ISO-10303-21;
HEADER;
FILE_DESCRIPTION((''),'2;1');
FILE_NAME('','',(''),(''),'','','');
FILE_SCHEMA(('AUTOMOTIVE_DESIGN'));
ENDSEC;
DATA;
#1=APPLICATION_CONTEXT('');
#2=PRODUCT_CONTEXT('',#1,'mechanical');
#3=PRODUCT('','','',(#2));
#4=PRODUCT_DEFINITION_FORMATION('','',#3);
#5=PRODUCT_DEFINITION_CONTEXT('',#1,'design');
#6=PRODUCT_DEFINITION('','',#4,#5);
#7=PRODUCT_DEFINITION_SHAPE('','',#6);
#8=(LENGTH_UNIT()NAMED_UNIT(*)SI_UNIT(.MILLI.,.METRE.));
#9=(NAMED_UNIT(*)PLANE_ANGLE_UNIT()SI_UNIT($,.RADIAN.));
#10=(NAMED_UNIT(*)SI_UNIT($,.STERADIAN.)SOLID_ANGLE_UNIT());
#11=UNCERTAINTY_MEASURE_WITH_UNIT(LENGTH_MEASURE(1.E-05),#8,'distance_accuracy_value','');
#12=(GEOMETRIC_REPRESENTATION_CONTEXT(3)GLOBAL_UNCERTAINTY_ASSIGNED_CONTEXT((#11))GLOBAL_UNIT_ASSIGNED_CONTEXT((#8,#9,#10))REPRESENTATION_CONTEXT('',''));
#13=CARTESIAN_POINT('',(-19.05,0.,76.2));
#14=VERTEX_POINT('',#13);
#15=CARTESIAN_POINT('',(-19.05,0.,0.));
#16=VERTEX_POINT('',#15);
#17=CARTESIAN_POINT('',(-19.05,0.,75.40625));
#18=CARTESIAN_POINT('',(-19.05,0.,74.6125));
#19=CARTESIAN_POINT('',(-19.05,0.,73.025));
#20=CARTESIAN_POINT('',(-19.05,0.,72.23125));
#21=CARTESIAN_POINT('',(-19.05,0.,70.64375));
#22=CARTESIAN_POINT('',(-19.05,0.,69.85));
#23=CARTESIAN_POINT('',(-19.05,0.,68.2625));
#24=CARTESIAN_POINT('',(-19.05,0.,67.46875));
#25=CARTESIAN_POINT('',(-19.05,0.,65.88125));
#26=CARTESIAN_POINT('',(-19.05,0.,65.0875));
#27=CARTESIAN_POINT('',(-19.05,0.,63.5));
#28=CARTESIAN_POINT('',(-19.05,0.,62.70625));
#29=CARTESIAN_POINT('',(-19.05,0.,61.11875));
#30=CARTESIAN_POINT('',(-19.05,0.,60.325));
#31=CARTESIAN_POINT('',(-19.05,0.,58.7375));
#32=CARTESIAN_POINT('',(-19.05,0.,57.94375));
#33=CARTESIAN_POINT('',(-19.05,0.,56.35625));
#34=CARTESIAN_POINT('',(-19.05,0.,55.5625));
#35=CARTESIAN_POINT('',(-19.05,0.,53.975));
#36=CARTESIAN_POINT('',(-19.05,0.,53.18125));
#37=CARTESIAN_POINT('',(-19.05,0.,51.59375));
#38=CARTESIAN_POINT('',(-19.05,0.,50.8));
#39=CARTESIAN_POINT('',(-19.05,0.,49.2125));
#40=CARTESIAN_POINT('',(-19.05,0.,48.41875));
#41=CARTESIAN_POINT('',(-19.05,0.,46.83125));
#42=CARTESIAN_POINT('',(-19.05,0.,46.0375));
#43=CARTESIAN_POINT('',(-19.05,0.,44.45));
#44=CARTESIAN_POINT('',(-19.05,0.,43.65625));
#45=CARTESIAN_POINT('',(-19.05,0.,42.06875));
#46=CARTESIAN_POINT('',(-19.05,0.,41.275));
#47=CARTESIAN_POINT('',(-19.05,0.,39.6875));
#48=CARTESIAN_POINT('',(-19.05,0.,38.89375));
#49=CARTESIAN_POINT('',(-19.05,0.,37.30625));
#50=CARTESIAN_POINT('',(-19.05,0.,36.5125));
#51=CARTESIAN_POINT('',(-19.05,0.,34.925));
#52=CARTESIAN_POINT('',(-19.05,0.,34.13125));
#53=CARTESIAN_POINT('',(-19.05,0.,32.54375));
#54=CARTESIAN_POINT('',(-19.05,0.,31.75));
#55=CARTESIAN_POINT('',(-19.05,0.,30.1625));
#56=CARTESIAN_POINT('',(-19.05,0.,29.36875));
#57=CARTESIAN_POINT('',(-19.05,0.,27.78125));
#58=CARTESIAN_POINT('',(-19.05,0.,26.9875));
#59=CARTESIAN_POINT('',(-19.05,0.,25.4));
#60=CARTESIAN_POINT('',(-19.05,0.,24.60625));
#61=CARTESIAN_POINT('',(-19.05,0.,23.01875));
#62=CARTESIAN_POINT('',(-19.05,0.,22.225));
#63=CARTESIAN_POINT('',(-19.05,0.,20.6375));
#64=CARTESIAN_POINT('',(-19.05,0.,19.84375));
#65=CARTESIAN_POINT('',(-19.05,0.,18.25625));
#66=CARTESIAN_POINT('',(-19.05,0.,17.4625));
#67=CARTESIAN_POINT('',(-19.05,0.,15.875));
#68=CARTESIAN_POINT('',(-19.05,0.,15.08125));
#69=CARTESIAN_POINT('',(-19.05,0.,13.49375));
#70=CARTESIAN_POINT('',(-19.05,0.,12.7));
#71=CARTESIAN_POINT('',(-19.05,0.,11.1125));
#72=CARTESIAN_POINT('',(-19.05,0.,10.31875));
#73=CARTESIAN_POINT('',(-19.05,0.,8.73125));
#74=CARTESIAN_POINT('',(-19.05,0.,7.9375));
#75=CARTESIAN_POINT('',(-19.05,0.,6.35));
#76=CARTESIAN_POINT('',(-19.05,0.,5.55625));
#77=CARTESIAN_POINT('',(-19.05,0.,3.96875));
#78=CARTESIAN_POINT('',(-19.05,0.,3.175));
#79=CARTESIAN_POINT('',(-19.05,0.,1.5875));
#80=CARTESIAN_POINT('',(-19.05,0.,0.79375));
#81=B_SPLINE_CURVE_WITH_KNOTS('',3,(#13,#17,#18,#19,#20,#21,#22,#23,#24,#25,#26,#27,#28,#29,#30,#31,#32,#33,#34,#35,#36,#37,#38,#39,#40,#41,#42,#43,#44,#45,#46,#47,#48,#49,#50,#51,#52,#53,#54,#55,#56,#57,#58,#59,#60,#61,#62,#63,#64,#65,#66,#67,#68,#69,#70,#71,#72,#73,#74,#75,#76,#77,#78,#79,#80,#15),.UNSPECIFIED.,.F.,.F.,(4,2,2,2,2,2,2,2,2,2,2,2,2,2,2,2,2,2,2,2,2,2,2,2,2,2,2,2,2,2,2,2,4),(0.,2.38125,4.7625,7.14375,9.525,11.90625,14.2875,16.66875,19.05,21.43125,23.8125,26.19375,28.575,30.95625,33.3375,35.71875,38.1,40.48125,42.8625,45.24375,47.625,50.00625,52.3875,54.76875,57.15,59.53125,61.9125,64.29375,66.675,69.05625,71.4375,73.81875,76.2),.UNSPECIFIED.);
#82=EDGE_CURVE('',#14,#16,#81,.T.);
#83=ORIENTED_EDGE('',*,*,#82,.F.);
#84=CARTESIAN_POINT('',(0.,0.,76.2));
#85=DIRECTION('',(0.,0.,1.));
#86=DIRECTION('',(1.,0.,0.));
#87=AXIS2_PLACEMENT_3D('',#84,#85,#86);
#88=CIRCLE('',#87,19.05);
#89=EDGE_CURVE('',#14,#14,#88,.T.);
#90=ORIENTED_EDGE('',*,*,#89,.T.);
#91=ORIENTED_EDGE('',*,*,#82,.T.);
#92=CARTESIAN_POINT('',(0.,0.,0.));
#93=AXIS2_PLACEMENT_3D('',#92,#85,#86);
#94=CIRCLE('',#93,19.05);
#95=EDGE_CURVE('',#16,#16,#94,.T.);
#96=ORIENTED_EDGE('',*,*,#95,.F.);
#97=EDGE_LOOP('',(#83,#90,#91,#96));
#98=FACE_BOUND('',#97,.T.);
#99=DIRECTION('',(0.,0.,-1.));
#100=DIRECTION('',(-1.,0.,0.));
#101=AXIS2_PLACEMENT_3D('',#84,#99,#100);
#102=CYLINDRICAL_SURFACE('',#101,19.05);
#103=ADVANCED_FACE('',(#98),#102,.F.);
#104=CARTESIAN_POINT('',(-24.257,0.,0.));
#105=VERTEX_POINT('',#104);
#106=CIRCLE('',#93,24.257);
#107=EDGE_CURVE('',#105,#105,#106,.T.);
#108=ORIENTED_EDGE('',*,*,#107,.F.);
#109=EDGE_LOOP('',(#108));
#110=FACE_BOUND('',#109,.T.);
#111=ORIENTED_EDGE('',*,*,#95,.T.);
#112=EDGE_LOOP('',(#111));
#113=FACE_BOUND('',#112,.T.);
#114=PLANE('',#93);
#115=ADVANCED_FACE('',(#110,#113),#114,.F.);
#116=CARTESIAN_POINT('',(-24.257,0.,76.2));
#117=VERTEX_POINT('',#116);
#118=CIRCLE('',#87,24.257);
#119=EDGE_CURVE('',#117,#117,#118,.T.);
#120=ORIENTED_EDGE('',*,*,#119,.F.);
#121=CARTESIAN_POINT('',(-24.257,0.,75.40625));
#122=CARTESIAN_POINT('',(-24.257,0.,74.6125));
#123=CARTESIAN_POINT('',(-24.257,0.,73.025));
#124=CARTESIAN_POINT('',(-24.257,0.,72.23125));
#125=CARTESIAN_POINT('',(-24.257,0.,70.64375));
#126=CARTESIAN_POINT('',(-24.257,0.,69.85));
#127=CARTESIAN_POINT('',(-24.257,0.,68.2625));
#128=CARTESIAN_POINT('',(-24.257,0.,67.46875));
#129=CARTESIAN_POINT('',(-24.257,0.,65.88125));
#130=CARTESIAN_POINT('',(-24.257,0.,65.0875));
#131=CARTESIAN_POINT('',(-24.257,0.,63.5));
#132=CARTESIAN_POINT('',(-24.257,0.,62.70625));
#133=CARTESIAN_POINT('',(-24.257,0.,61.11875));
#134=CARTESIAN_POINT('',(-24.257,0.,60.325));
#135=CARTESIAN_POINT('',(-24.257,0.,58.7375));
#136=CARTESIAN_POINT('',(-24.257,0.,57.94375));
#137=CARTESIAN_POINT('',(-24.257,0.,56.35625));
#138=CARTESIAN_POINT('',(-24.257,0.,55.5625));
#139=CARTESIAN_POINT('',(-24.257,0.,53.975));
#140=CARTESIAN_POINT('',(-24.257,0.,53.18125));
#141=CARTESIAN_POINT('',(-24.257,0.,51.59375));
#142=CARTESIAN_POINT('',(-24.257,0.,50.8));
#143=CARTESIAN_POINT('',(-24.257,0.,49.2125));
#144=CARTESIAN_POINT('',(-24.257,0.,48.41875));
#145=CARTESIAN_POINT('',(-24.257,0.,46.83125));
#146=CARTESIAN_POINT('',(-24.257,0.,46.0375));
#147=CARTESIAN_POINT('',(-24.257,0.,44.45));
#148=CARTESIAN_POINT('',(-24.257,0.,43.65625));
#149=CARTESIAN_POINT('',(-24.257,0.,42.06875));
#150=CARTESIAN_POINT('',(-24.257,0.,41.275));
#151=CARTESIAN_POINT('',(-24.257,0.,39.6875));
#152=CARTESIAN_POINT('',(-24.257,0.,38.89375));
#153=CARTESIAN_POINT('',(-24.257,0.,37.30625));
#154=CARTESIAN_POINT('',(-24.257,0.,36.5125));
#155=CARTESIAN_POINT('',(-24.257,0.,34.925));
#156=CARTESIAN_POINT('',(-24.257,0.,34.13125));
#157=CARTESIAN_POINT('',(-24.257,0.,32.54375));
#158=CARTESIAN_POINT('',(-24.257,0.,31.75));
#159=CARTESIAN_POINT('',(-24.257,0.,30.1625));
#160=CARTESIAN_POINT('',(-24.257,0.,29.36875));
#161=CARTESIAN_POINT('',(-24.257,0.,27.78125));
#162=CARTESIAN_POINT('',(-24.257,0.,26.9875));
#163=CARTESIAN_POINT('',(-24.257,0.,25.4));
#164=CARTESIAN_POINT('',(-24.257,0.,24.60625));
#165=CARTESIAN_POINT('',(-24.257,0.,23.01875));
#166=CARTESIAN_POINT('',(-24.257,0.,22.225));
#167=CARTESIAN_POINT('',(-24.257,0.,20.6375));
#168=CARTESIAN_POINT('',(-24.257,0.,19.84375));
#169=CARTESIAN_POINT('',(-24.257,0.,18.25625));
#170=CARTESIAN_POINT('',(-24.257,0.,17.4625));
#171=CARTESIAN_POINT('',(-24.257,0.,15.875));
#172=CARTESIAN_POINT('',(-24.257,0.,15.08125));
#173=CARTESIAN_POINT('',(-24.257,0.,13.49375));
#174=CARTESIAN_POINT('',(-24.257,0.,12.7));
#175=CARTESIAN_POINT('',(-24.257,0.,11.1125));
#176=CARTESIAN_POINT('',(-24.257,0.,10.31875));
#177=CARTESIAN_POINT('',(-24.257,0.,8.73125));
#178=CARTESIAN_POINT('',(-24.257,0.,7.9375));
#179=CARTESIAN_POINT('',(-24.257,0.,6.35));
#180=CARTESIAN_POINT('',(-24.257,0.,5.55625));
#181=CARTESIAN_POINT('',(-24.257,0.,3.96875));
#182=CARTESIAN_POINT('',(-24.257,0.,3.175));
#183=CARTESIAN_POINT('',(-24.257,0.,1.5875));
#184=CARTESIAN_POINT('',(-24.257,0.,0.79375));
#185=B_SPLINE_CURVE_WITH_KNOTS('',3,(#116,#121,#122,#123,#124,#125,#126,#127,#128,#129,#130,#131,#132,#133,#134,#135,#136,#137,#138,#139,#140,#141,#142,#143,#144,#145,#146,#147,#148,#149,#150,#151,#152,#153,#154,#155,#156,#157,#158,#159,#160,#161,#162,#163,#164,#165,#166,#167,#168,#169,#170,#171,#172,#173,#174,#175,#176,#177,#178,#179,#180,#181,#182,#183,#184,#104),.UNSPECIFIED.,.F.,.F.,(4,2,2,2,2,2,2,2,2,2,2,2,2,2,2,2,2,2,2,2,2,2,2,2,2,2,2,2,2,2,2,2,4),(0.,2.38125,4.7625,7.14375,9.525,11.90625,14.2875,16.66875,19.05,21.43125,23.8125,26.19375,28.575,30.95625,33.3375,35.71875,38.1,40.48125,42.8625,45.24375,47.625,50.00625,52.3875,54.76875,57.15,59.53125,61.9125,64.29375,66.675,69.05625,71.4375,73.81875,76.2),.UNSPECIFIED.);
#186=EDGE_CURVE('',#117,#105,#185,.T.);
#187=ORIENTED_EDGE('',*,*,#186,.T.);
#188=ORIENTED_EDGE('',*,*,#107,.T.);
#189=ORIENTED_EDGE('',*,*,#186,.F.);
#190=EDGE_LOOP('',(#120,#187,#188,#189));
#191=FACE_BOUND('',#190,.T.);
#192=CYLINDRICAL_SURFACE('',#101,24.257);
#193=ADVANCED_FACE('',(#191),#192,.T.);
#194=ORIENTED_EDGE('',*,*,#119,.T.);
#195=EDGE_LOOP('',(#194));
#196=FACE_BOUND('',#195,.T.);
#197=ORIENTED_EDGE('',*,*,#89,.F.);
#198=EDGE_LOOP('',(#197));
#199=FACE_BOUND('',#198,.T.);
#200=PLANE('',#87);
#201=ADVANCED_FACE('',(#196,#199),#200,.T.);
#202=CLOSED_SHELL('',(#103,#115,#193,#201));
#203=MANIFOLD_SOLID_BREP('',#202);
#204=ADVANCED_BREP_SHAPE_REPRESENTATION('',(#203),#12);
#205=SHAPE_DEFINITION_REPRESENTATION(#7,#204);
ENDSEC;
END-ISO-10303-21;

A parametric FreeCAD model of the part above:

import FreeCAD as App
import Part
import Sketcher
from FreeCAD import Vector
Q = App.Units.Quantity

doc = App.newDocument("Part")
body = doc.addObject("PartDesign::Body", "Body")

sketch1 = body.newObject("Sketcher::SketchObject", "Sketch")
sketch1.AttachmentSupport = (doc.getObject("XY_Plane"), [""])
sketch1.MapMode = "FlatFace"
sketch1.addGeometry([
    Part.Circle(Vector(0, 0, 0), Vector(0, 0, 1), 24.257),
    Part.Circle(Vector(0, 0, 0), Vector(0, 0, 1), 19.05),
], False)
sketch1.addConstraint([
    Sketcher.Constraint("Coincident", 0, 3, -1, 1),
    Sketcher.Constraint("Coincident", 1, 3, -1, 1),
    Sketcher.Constraint("Diameter", 1, Q("1.5 in")),
    Sketcher.Constraint("Diameter", 0, Q("1.91 in")),
])
pad1 = body.newObject("PartDesign::Pad", "Pad")
pad1.Profile = sketch1
pad1.Length = Q("3 in")

doc.recompute()
